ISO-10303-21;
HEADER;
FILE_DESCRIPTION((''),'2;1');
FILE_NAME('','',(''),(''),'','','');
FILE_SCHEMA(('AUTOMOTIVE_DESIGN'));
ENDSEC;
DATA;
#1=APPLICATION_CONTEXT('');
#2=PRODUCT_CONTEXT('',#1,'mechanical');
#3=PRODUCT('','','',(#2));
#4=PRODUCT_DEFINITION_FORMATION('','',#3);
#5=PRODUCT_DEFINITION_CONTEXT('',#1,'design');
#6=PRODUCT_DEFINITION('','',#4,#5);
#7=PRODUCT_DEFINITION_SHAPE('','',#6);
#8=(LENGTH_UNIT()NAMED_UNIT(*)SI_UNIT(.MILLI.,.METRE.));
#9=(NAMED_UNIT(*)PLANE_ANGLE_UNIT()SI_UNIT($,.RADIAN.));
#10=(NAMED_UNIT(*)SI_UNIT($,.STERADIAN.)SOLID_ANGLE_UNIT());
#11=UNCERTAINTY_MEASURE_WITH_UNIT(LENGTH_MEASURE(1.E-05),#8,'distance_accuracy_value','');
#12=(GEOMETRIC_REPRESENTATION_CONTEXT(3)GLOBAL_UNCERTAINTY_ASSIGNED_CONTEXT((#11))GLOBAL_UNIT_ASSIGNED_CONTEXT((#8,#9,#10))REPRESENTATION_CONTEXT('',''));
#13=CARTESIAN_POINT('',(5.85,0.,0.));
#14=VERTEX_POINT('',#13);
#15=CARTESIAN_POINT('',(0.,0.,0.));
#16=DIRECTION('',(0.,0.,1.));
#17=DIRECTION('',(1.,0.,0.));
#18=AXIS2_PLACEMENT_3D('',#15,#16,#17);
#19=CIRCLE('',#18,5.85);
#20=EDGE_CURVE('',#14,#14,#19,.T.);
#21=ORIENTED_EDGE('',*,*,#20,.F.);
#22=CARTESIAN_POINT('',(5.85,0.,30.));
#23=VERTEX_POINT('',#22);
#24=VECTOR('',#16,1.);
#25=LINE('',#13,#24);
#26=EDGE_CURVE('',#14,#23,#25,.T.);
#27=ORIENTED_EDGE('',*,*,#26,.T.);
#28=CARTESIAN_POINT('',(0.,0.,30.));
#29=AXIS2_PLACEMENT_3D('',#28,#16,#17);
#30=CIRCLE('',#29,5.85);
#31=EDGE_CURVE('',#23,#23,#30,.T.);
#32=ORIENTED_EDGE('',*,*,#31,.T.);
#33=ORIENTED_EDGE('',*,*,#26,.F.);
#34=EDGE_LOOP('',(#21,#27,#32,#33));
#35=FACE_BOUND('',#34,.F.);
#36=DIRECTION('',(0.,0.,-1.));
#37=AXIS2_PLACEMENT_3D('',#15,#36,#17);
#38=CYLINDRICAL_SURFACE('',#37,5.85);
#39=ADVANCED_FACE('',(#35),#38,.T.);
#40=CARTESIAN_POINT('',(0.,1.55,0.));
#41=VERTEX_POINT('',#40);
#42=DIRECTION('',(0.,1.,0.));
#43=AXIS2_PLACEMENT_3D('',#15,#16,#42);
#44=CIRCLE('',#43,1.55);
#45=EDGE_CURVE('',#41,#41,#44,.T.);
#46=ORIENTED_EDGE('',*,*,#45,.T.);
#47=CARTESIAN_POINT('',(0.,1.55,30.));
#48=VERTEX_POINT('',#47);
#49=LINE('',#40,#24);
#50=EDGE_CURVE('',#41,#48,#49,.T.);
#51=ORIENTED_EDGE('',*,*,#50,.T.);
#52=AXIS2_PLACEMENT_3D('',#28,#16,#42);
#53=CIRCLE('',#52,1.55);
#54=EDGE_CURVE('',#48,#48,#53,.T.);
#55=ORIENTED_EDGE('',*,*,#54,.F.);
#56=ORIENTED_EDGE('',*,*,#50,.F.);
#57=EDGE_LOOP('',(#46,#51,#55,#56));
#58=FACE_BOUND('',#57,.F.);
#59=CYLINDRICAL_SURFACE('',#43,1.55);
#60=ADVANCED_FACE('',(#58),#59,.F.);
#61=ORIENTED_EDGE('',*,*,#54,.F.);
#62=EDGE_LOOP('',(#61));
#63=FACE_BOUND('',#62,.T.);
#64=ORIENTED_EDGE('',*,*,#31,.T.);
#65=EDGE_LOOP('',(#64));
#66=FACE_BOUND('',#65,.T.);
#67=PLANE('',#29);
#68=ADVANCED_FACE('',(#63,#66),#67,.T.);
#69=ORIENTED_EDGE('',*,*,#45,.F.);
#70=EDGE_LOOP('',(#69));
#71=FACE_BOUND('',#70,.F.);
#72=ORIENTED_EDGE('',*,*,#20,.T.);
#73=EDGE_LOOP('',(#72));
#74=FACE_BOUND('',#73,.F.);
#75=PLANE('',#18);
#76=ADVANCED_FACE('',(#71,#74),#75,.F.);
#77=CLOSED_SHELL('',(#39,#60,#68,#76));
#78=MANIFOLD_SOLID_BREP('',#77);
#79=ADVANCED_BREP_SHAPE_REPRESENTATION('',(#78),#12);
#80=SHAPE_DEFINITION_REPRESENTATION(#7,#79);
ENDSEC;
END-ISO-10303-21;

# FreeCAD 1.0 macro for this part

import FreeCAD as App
import Part
import Sketcher
from FreeCAD import Vector
Q = App.Units.Quantity

doc = App.newDocument("Part")
body = doc.addObject("PartDesign::Body", "Body")

# Sketch on XY plane
sketch1 = body.newObject("Sketcher::SketchObject", "Sketch")
sketch1.AttachmentSupport = (doc.getObject("XY_Plane"), [""])
sketch1.MapMode = "FlatFace"
sketch1.addGeometry(Part.Circle(Vector(0, 0, 0), Vector(0, 0, 1), 5.85), False)
sketch1.addConstraint(Sketcher.Constraint("Coincident", 0, 3, -1, 1))
sketch1.addConstraint(Sketcher.Constraint("Diameter", 0, Q("11.7 mm")))
pad1 = body.newObject("PartDesign::Pad", "Pad")
pad1.Profile = sketch1
pad1.Length = 30

# Sketch on XY plane
sketch2 = body.newObject("Sketcher::SketchObject", "Sketch001")
sketch2.AttachmentSupport = (doc.getObject("XY_Plane"), [""])
sketch2.MapMode = "FlatFace"
sketch2.addGeometry(Part.Circle(Vector(0, 0, 0), Vector(0, 0, 1), 1.55), False)
sketch2.addConstraint(Sketcher.Constraint("Coincident", 0, 3, -1, 1))
sketch2.addConstraint(Sketcher.Constraint("Diameter", 0, Q("3.1 mm")))
doc.recompute()
hole = body.newObject("PartDesign::Hole", "Hole")
hole.Profile = sketch2
hole.ThreadType = "None"
hole.Diameter = 3.1
hole.DepthType = "ThroughAll"
hole.Reversed = True

doc.recompute()
